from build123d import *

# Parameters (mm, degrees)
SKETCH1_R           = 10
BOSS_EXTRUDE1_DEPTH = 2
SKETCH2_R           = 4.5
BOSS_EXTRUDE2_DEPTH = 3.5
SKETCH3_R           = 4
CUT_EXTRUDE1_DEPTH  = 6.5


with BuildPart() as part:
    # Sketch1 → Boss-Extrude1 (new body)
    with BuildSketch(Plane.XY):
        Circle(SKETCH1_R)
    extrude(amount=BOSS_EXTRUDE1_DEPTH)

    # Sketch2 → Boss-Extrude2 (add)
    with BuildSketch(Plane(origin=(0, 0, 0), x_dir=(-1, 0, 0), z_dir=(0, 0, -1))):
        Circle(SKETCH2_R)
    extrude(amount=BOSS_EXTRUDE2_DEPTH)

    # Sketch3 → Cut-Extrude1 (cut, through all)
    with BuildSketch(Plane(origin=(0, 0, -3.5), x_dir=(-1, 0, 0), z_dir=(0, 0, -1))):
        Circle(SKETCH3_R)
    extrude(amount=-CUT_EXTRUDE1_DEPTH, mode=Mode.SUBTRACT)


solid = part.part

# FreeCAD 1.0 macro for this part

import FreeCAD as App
import Part
import Sketcher

V = App.Vector

doc = App.newDocument("Part")
body = doc.addObject("PartDesign::Body", "Body")

# Sketch on XY plane
sketch1 = doc.addObject("Sketcher::SketchObject", "Sketch")
body.addObject(sketch1)
sketch1.AttachmentSupport = (doc.XY_Plane, [""])
sketch1.MapMode = "FlatFace"
sketch1.addGeometry(Part.Circle(V(0, 0, 0), V(0, 0, 1), 10), False)
sketch1.addConstraint([
    Sketcher.Constraint("Coincident", 0, 3, -1, 1),
    Sketcher.Constraint("Diameter", 0, 20.0),
])
pad1 = doc.addObject("PartDesign::Pad", "Pad")
body.addObject(pad1)
pad1.Profile = sketch1
pad1.Length = 2

# Sketch on XY plane
sketch2 = doc.addObject("Sketcher::SketchObject", "Sketch001")
body.addObject(sketch2)
sketch2.AttachmentSupport = (doc.XY_Plane, [""])
sketch2.MapMode = "FlatFace"
sketch2.addGeometry(Part.Circle(V(0, 0, 0), V(0, 0, 1), 4.5), False)
sketch2.addConstraint([
    Sketcher.Constraint("Coincident", 0, 3, -1, 1),
    Sketcher.Constraint("Diameter", 0, 9.0),
])
pad2 = doc.addObject("PartDesign::Pad", "Pad001")
body.addObject(pad2)
pad2.Profile = sketch2
pad2.Length = 3.5
pad2.Reversed = True

# Sketch on XY plane
sketch3 = doc.addObject("Sketcher::SketchObject", "Sketch002")
body.addObject(sketch3)
sketch3.AttachmentSupport = (doc.XY_Plane, [""])
sketch3.MapMode = "FlatFace"
sketch3.AttachmentOffset = App.Placement(V(0, 0, -3.5), App.Rotation())
sketch3.addGeometry(Part.Circle(V(0, 0, 0), V(0, 0, 1), 4), False)
sketch3.addConstraint([
    Sketcher.Constraint("Coincident", 0, 3, -1, 1),
    Sketcher.Constraint("Diameter", 0, 8.0),
])
pocket1 = doc.addObject("PartDesign::Pocket", "Pocket")
body.addObject(pocket1)
pocket1.Profile = sketch3
pocket1.Type = "ThroughAll"
pocket1.Reversed = True

doc.recompute()
